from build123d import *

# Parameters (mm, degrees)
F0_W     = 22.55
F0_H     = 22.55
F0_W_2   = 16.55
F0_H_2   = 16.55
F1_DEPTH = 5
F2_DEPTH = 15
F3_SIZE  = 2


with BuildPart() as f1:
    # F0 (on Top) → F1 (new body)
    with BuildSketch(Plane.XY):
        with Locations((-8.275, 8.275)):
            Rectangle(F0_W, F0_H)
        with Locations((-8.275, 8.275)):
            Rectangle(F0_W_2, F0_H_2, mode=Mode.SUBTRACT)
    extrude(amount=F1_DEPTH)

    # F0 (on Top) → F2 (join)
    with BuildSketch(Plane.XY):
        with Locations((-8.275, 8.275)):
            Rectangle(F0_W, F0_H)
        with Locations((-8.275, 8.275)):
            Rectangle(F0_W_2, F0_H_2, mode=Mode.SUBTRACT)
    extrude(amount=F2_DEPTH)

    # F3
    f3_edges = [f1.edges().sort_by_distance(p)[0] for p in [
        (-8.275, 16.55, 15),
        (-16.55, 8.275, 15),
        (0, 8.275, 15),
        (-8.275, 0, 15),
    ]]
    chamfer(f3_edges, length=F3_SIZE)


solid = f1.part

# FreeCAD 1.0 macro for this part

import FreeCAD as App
import Part
import Sketcher


def edges_at(feature, points):
    """Names of the edges that pass closest to the given points."""
    edges = feature.Shape.Edges
    near = lambda p: min(range(len(edges)), key=lambda i: edges[i].distToShape(Part.Vertex(*p))[0])
    return sorted({f"Edge{near(p) + 1}" for p in points})

doc = App.newDocument("Part")
body = doc.addObject("PartDesign::Body", "Body")

sketch1 = doc.addObject("Sketcher::SketchObject", "Sketch")
body.addObject(sketch1)
sketch1.AttachmentSupport = (doc.XY_Plane, [""])
sketch1.MapMode = "FlatFace"
sketch1.addGeometry(Part.LineSegment(App.Vector(-19.55, 19.55, 0), App.Vector(-19.55, -3, 0)), False)
sketch1.addGeometry(Part.LineSegment(App.Vector(-19.55, -3, 0), App.Vector(3, -3, 0)), False)
sketch1.addGeometry(Part.LineSegment(App.Vector(3, -3, 0), App.Vector(3, 19.55, 0)), False)
sketch1.addGeometry(Part.LineSegment(App.Vector(3, 19.55, 0), App.Vector(-19.55, 19.55, 0)), False)
sketch1.addGeometry(Part.LineSegment(App.Vector(0, 0, 0), App.Vector(-16.55, 0, 0)), False)
sketch1.addGeometry(Part.LineSegment(App.Vector(-16.55, 0, 0), App.Vector(-16.55, 16.55, 0)), False)
sketch1.addGeometry(Part.LineSegment(App.Vector(-16.55, 16.55, 0), App.Vector(0, 16.55, 0)), False)
sketch1.addGeometry(Part.LineSegment(App.Vector(0, 16.55, 0), App.Vector(0, 0, 0)), False)
sketch1.addConstraint(Sketcher.Constraint("Coincident", 0, 2, 1, 1))
sketch1.addConstraint(Sketcher.Constraint("Coincident", 1, 2, 2, 1))
sketch1.addConstraint(Sketcher.Constraint("Coincident", 2, 2, 3, 1))
sketch1.addConstraint(Sketcher.Constraint("Coincident", 3, 2, 0, 1))
sketch1.addConstraint(Sketcher.Constraint("Coincident", 4, 2, 5, 1))
sketch1.addConstraint(Sketcher.Constraint("Coincident", 5, 2, 6, 1))
sketch1.addConstraint(Sketcher.Constraint("Coincident", 6, 2, 7, 1))
sketch1.addConstraint(Sketcher.Constraint("Coincident", 7, 2, 4, 1))
sketch1.addConstraint(Sketcher.Constraint("Vertical", 0))
sketch1.addConstraint(Sketcher.Constraint("Horizontal", 1))
sketch1.addConstraint(Sketcher.Constraint("Vertical", 2))
sketch1.addConstraint(Sketcher.Constraint("Horizontal", 3))
sketch1.addConstraint(Sketcher.Constraint("Horizontal", 4))
sketch1.addConstraint(Sketcher.Constraint("Vertical", 5))
sketch1.addConstraint(Sketcher.Constraint("Horizontal", 6))
sketch1.addConstraint(Sketcher.Constraint("Vertical", 7))
sketch1.addConstraint(Sketcher.Constraint("Coincident", 7, 2, -1, 1))
sketch1.addConstraint(Sketcher.Constraint("Equal", 3, 0))
sketch1.addConstraint(Sketcher.Constraint("Equal", 6, 5))
sketch1.addConstraint(Sketcher.Constraint("DistanceY", 0, 2, -1, 1, 3.0))
sketch1.addConstraint(Sketcher.Constraint("DistanceX", -1, 1, 1, 2, 3.0))
sketch1.addConstraint(Sketcher.Constraint("DistanceX", 0, 2, 4, 2, 3.0))
sketch1.addConstraint(Sketcher.Constraint("DistanceX", 1, 1, 1, 2, 22.55))
pad1 = doc.addObject("PartDesign::Pad", "Pad")
body.addObject(pad1)
pad1.Profile = sketch1
pad1.Length = 5

sketch2 = doc.addObject("Sketcher::SketchObject", "Sketch001")
body.addObject(sketch2)
sketch2.AttachmentSupport = (doc.XY_Plane, [""])
sketch2.MapMode = "FlatFace"
sketch2.addGeometry(Part.LineSegment(App.Vector(-19.55, 19.55, 0), App.Vector(-19.55, -3, 0)), False)
sketch2.addGeometry(Part.LineSegment(App.Vector(-19.55, -3, 0), App.Vector(3, -3, 0)), False)
sketch2.addGeometry(Part.LineSegment(App.Vector(3, -3, 0), App.Vector(3, 19.55, 0)), False)
sketch2.addGeometry(Part.LineSegment(App.Vector(3, 19.55, 0), App.Vector(-19.55, 19.55, 0)), False)
sketch2.addGeometry(Part.LineSegment(App.Vector(0, 0, 0), App.Vector(-16.55, 0, 0)), False)
sketch2.addGeometry(Part.LineSegment(App.Vector(-16.55, 0, 0), App.Vector(-16.55, 16.55, 0)), False)
sketch2.addGeometry(Part.LineSegment(App.Vector(-16.55, 16.55, 0), App.Vector(0, 16.55, 0)), False)
sketch2.addGeometry(Part.LineSegment(App.Vector(0, 16.55, 0), App.Vector(0, 0, 0)), False)
sketch2.addConstraint(Sketcher.Constraint("Coincident", 0, 2, 1, 1))
sketch2.addConstraint(Sketcher.Constraint("Coincident", 1, 2, 2, 1))
sketch2.addConstraint(Sketcher.Constraint("Coincident", 2, 2, 3, 1))
sketch2.addConstraint(Sketcher.Constraint("Coincident", 3, 2, 0, 1))
sketch2.addConstraint(Sketcher.Constraint("Coincident", 4, 2, 5, 1))
sketch2.addConstraint(Sketcher.Constraint("Coincident", 5, 2, 6, 1))
sketch2.addConstraint(Sketcher.Constraint("Coincident", 6, 2, 7, 1))
sketch2.addConstraint(Sketcher.Constraint("Coincident", 7, 2, 4, 1))
sketch2.addConstraint(Sketcher.Constraint("Vertical", 0))
sketch2.addConstraint(Sketcher.Constraint("Horizontal", 1))
sketch2.addConstraint(Sketcher.Constraint("Vertical", 2))
sketch2.addConstraint(Sketcher.Constraint("Horizontal", 3))
sketch2.addConstraint(Sketcher.Constraint("Horizontal", 4))
sketch2.addConstraint(Sketcher.Constraint("Vertical", 5))
sketch2.addConstraint(Sketcher.Constraint("Horizontal", 6))
sketch2.addConstraint(Sketcher.Constraint("Vertical", 7))
sketch2.addConstraint(Sketcher.Constraint("Coincident", 7, 2, -1, 1))
sketch2.addConstraint(Sketcher.Constraint("Equal", 3, 0))
sketch2.addConstraint(Sketcher.Constraint("Equal", 6, 5))
sketch2.addConstraint(Sketcher.Constraint("DistanceY", 0, 2, -1, 1, 3.0))
sketch2.addConstraint(Sketcher.Constraint("DistanceX", -1, 1, 1, 2, 3.0))
sketch2.addConstraint(Sketcher.Constraint("DistanceX", 0, 2, 4, 2, 3.0))
sketch2.addConstraint(Sketcher.Constraint("DistanceX", 1, 1, 1, 2, 22.55))
pad2 = doc.addObject("PartDesign::Pad", "Pad001")
body.addObject(pad2)
pad2.Profile = sketch2
pad2.Length = 15
doc.recompute()

chamfer = doc.addObject("PartDesign::Chamfer", "Chamfer")
body.addObject(chamfer)
chamfer.Base = (pad2, edges_at(pad2, [
    (-8.275, 16.55, 15),
    (-16.55, 8.275, 15),
    (0, 8.275, 15),
    (-8.275, 0, 15),
]))
chamfer.Size = 2

doc.recompute()
